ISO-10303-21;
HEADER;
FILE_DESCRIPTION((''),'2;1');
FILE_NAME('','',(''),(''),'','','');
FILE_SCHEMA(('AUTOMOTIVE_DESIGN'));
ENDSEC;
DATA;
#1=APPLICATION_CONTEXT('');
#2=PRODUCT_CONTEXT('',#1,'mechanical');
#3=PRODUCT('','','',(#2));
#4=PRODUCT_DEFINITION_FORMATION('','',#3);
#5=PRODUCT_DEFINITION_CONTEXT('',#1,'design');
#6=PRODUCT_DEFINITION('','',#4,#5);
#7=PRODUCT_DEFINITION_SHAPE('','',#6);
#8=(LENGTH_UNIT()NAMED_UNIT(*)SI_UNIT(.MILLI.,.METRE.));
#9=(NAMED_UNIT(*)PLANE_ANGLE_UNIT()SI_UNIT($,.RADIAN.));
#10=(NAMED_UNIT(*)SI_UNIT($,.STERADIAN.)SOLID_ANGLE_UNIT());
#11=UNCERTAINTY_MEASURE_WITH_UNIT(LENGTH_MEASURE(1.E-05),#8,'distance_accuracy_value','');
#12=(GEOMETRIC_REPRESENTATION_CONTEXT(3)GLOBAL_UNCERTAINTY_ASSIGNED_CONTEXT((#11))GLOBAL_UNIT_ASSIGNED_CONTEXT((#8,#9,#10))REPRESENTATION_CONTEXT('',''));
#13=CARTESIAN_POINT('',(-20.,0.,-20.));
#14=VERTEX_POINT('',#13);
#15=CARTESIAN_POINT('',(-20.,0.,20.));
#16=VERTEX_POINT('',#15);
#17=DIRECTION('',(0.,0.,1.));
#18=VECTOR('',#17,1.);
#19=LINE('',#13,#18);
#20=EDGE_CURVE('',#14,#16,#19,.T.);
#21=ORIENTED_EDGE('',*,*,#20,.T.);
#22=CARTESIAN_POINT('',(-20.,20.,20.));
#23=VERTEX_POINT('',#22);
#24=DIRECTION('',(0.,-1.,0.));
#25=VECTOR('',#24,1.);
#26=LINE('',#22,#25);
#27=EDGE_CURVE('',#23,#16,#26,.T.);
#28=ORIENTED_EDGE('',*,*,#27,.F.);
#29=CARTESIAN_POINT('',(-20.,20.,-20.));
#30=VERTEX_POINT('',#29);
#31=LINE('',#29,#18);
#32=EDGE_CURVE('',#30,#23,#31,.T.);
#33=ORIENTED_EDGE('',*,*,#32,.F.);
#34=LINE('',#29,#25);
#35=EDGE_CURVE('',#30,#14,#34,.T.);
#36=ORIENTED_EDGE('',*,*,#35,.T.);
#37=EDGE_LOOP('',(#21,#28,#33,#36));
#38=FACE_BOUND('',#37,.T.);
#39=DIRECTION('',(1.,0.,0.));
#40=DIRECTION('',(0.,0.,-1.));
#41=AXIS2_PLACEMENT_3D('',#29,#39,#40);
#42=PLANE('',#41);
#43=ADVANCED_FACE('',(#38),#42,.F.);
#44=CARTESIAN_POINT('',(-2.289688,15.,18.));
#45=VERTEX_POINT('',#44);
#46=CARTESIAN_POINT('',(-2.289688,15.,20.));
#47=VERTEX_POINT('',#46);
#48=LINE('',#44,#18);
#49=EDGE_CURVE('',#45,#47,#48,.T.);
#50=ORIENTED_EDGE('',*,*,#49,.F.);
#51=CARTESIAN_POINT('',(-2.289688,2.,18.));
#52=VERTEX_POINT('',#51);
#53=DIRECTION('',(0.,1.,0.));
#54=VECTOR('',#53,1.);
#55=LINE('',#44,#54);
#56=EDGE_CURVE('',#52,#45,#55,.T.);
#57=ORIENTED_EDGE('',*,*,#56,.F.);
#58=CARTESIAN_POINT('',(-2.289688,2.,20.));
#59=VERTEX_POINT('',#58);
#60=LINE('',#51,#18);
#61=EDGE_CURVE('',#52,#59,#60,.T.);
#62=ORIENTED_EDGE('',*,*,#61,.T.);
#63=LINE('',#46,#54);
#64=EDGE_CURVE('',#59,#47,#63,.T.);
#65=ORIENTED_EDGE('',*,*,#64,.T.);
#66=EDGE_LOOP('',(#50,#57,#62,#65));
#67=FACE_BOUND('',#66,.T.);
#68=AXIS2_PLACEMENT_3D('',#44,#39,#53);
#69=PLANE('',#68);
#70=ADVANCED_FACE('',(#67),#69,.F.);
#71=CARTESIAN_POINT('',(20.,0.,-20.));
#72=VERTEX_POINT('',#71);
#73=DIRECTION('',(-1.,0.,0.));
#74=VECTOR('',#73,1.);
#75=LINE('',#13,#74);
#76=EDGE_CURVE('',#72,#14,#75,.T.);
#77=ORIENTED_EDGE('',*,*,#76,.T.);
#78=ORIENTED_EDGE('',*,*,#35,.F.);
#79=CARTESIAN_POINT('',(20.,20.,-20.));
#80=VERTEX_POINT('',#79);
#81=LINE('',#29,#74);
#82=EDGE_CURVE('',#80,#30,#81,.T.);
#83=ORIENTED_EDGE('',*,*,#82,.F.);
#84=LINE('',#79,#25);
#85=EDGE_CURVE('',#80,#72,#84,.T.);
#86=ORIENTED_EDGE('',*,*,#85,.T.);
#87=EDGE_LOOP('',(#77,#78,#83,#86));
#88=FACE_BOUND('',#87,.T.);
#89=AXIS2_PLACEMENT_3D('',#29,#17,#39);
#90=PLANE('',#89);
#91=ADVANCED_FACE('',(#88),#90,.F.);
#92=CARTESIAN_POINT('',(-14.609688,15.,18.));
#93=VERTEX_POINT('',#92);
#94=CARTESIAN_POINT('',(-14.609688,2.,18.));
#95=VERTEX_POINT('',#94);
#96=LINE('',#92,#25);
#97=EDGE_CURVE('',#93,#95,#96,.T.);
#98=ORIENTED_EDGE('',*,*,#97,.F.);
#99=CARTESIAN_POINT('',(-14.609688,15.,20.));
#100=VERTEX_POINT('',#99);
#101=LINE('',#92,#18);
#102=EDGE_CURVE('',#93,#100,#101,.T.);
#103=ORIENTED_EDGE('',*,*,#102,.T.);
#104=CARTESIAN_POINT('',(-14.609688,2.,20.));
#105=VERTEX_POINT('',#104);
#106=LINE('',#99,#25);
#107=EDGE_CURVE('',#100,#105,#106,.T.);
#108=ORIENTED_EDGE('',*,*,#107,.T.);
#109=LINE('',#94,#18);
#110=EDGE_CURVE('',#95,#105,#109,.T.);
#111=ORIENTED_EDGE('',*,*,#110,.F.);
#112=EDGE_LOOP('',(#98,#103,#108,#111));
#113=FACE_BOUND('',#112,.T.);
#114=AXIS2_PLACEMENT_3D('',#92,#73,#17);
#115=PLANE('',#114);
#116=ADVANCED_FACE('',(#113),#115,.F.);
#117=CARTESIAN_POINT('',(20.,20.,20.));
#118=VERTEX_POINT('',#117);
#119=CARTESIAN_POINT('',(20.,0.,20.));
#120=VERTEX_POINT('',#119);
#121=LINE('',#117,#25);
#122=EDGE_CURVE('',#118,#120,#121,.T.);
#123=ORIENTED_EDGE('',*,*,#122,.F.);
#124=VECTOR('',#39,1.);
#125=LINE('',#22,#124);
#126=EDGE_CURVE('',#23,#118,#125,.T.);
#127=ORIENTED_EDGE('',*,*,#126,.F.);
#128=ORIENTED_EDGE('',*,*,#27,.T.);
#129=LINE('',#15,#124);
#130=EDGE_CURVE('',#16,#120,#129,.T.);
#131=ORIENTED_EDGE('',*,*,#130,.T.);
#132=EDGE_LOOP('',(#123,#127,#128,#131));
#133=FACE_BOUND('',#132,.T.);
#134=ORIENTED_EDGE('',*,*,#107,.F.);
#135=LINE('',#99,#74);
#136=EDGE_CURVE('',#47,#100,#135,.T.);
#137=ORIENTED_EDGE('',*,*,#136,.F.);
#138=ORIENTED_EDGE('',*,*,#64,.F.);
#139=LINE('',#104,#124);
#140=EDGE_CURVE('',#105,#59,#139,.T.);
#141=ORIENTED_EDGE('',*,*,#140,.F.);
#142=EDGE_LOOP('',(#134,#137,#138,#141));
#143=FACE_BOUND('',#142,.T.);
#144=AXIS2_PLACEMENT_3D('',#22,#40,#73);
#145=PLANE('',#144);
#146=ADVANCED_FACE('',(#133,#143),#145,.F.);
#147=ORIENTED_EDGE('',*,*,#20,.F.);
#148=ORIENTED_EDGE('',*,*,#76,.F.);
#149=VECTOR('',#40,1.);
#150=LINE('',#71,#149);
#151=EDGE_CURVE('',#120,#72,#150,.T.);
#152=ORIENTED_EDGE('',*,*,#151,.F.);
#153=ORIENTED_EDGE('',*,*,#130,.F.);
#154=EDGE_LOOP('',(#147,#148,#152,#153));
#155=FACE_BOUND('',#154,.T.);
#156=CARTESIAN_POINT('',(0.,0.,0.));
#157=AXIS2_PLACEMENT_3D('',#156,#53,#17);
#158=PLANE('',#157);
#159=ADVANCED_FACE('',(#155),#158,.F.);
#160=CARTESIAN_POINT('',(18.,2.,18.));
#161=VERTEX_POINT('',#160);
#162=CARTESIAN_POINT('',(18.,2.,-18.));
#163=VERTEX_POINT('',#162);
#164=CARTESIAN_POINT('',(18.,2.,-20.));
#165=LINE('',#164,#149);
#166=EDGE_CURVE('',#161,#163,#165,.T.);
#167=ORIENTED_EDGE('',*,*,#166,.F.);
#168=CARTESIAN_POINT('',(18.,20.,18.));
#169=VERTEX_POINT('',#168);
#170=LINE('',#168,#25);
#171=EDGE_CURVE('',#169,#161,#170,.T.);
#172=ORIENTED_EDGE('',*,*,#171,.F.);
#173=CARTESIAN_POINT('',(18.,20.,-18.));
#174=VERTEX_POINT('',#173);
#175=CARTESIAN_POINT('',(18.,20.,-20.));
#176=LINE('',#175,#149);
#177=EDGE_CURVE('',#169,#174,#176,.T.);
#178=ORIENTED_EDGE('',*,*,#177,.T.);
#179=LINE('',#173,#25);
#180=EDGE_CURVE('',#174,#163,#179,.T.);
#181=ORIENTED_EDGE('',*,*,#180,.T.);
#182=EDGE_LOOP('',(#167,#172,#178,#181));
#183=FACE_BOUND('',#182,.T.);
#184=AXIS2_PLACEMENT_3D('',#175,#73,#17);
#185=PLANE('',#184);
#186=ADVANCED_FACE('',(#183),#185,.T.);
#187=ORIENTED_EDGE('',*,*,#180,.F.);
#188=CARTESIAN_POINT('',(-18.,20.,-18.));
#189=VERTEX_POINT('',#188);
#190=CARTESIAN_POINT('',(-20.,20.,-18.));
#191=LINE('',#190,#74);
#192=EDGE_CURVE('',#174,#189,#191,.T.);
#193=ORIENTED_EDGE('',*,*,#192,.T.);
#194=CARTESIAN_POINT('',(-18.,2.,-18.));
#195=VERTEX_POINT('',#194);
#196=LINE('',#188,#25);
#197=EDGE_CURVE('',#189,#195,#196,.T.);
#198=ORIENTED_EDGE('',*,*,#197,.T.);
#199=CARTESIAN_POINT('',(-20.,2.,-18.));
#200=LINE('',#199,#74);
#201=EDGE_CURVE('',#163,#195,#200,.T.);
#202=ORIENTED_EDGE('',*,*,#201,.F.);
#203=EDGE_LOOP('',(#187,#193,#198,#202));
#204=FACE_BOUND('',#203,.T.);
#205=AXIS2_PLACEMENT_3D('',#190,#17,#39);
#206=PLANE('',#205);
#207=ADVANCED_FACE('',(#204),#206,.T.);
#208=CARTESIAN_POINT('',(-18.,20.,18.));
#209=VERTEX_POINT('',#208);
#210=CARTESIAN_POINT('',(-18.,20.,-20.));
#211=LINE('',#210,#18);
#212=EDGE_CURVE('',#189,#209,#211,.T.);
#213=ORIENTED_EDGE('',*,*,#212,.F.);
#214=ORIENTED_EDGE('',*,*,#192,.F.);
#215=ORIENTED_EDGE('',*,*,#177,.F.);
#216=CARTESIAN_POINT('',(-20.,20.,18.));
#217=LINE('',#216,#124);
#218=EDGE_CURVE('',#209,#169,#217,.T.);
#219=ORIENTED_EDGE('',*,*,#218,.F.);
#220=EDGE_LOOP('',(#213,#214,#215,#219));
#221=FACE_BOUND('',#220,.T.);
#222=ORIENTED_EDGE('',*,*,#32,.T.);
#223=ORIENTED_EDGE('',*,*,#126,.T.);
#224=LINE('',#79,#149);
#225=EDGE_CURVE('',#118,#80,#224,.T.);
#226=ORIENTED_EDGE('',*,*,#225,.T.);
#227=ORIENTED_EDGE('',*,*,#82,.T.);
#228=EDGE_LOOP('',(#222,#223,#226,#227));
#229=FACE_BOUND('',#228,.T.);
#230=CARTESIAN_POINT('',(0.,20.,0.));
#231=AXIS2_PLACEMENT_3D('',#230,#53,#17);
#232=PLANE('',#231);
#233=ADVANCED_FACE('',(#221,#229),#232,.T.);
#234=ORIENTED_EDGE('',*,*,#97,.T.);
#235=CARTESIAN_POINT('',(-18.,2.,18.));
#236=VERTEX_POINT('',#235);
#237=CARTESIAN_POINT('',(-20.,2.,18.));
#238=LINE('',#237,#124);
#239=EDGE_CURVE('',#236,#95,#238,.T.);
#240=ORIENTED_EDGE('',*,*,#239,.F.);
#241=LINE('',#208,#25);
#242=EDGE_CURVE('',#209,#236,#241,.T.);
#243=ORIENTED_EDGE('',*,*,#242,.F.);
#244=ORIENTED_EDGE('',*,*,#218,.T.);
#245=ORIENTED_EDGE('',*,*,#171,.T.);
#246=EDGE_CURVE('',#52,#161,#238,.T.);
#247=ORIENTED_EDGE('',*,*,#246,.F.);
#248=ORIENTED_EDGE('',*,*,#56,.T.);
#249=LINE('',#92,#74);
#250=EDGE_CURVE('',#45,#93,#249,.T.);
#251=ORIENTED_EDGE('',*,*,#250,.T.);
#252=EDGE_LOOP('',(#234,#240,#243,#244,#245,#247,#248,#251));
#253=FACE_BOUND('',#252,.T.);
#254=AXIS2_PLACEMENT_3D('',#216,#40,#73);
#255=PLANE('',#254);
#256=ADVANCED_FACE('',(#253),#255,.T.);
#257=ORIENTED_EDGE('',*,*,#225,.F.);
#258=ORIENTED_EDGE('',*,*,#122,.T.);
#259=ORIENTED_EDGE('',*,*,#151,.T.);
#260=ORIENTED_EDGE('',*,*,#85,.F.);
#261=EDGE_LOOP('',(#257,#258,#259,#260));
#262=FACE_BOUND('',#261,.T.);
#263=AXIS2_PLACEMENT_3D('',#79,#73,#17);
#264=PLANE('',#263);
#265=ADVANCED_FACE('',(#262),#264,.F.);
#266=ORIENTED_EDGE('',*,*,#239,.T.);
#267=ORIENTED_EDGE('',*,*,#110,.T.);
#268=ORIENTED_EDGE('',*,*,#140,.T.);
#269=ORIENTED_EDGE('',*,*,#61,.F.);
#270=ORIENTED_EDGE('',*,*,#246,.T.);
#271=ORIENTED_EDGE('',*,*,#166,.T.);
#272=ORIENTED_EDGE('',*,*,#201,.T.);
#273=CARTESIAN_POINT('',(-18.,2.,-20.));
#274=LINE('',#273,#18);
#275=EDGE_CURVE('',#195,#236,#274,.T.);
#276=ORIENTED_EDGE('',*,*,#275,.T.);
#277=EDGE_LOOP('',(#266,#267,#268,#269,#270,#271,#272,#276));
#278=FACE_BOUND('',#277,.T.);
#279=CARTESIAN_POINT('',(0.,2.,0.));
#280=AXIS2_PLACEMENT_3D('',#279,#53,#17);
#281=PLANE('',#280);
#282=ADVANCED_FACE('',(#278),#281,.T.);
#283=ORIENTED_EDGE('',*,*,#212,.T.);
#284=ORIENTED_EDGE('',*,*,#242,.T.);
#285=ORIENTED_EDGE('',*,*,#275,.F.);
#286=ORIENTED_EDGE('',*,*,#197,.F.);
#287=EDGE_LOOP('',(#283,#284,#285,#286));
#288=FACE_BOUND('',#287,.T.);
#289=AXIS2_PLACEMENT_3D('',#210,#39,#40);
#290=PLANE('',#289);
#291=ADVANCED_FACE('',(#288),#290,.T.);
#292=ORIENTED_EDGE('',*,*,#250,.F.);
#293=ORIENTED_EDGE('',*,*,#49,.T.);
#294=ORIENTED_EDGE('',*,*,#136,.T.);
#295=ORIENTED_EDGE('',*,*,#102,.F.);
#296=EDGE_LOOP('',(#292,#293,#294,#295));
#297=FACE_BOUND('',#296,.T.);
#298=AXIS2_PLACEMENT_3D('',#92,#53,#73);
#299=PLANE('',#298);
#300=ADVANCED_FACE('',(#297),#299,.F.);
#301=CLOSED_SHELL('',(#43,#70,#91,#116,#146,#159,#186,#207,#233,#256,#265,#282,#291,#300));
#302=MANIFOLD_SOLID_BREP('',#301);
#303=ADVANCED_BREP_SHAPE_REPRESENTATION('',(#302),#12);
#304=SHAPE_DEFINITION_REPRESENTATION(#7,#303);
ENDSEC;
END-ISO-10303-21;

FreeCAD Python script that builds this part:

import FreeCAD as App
import Part
import Sketcher
from FreeCAD import Vector


def faces_at(feature, points):
    """Names of the faces that lie closest to the given points."""
    faces = feature.Shape.Faces
    near = lambda p: min(range(len(faces)), key=lambda i: faces[i].distToShape(Part.Vertex(*p))[0])
    return sorted({f"Face{near(p) + 1}" for p in points})


def add_polygon(sketch, points):
    """Adds a closed chain of lines whose ends are joined by coincident constraints."""
    first, n = sketch.GeometryCount, len(points)
    for a, b in zip(points, points[1:] + points[:1]):
        sketch.addGeometry(Part.LineSegment(App.Vector(*a, 0), App.Vector(*b, 0)), False)
    for i in range(n):
        sketch.addConstraint(Sketcher.Constraint("Coincident", first + i, 2, first + (i + 1) % n, 1))

doc = App.newDocument("Part")
body = doc.addObject("PartDesign::Body", "Body")

sketch1 = body.newObject("Sketcher::SketchObject", "Sketch")
sketch1.AttachmentSupport = (doc.getObject("XZ_Plane"), [""])
sketch1.MapMode = "FlatFace"
add_polygon(sketch1, [(-20, -20), (-20, 20), (20, 20), (20, -20)])
sketch1.addConstraint(Sketcher.Constraint("Vertical", 0))
sketch1.addConstraint(Sketcher.Constraint("Horizontal", 1))
sketch1.addConstraint(Sketcher.Constraint("Vertical", 2))
sketch1.addConstraint(Sketcher.Constraint("Horizontal", 3))
sketch1.addConstraint(Sketcher.Constraint("Symmetric", 0, 2, 2, 2, -1, 1))
sketch1.addConstraint(Sketcher.Constraint("Equal", 3, 0))
sketch1.addConstraint(Sketcher.Constraint("DistanceX", 1, 1, 1, 2, 40.0))
pad1 = body.newObject("PartDesign::Pad", "Pad")
pad1.Profile = sketch1
pad1.Length = 20
pad1.Reversed = True
doc.recompute()

thickness = body.newObject("PartDesign::Thickness", "Thickness")
thickness.Base = (pad1, faces_at(pad1, [(0, 20, 0)]))
thickness.Value = 2
thickness.Reversed = True
thickness.Join = "Intersection"

sketch2 = body.newObject("Sketcher::SketchObject", "Sketch001")
sketch2.AttachmentSupport = (doc.getObject("XY_Plane"), [""])
sketch2.MapMode = "FlatFace"
sketch2.AttachmentOffset = App.Placement(Vector(0, 0, 20), App.Rotation())
add_polygon(sketch2, [(-15, 15), (-15, 2), (-2, 2), (-2, 15)])
sketch2.addConstraint(Sketcher.Constraint("Vertical", 0))
sketch2.addConstraint(Sketcher.Constraint("Horizontal", 1))
sketch2.addConstraint(Sketcher.Constraint("Vertical", 2))
sketch2.addConstraint(Sketcher.Constraint("Horizontal", 3))
sketch2.addConstraint(Sketcher.Constraint("DistanceY", 0, 2, 0, 1, 13.0))
sketch2.addConstraint(Sketcher.Constraint("DistanceY", -1, 1, 0, 2, 2.0))
sketch2.addConstraint(Sketcher.Constraint("DistanceX", 1, 1, 1, 2, 12.32))
sketch2.addConstraint(Sketcher.Constraint("DistanceX", 0, 2, -1, 1, 14.609688))
pocket1 = body.newObject("PartDesign::Pocket", "Pocket")
pocket1.Profile = sketch2
pocket1.Length = 2

doc.recompute()
